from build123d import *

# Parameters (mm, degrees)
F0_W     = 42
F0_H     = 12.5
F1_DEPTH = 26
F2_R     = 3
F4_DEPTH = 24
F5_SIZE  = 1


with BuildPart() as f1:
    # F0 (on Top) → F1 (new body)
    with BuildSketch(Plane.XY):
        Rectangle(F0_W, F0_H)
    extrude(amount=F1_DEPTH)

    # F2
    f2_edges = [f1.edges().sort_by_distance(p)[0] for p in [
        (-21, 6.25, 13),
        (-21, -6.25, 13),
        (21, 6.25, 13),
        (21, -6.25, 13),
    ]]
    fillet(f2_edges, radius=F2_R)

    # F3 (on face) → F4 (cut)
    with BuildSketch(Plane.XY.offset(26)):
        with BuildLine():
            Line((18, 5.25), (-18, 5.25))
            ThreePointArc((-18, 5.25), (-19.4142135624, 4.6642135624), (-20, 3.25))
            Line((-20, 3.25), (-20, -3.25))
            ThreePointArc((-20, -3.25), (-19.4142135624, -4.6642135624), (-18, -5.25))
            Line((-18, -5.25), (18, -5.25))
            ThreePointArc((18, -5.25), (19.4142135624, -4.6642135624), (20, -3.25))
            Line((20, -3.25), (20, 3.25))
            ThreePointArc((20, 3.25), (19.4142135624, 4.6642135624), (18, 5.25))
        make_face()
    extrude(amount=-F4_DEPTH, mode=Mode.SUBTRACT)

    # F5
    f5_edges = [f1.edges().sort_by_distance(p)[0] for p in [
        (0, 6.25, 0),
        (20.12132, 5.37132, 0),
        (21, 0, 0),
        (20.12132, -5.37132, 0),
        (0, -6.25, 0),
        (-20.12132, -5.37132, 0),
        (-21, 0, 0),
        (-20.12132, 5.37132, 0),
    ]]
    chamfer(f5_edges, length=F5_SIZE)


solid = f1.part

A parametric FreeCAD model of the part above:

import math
import FreeCAD as App
import Part
import Sketcher

V = App.Vector


def edges_at(feature, points):
    """Names of the edges that pass closest to the given points."""
    edges = feature.Shape.Edges
    near = lambda p: min(range(len(edges)), key=lambda i: edges[i].distToShape(Part.Vertex(*p))[0])
    return sorted({f"Edge{near(p) + 1}" for p in points})

doc = App.newDocument("Part")
body = doc.addObject("PartDesign::Body", "Body")

# Sketch on XY plane
sketch1 = body.newObject("Sketcher::SketchObject", "Sketch")
sketch1.AttachmentSupport = (doc.getObject("XY_Plane"), [""])
sketch1.MapMode = "FlatFace"
sketch1.addGeometry([
    Part.LineSegment(V(-21, 6, 0), V(-21, -6, 0)),
    Part.LineSegment(V(-21, -6, 0), V(21, -6, 0)),
    Part.LineSegment(V(21, -6, 0), V(21, 6, 0)),
    Part.LineSegment(V(21, 6, 0), V(-21, 6, 0)),
], False)
sketch1.addConstraint([
    Sketcher.Constraint("Coincident", 0, 2, 1, 1),
    Sketcher.Constraint("Coincident", 1, 2, 2, 1),
    Sketcher.Constraint("Coincident", 2, 2, 3, 1),
    Sketcher.Constraint("Coincident", 3, 2, 0, 1),
    Sketcher.Constraint("Vertical", 0),
    Sketcher.Constraint("Horizontal", 1),
    Sketcher.Constraint("Vertical", 2),
    Sketcher.Constraint("Horizontal", 3),
    Sketcher.Constraint("Symmetric", 0, 2, 2, 2, -1, 1),
    Sketcher.Constraint("DistanceX", 1, 1, 1, 2, 42.0),
    Sketcher.Constraint("DistanceY", 0, 2, 0, 1, 12.5),
])
pad1 = body.newObject("PartDesign::Pad", "Pad")
pad1.Profile = sketch1
pad1.Length = 26
doc.recompute()

fillet = body.newObject("PartDesign::Fillet", "Fillet")
fillet.Base = (pad1, edges_at(pad1, [
    (-21, 6.25, 13),
    (-21, -6.25, 13),
    (21, 6.25, 13),
    (21, -6.25, 13),
]))
fillet.Radius = 3

# Sketch on XY plane
sketch2 = body.newObject("Sketcher::SketchObject", "Sketch001")
sketch2.AttachmentSupport = (doc.getObject("XY_Plane"), [""])
sketch2.MapMode = "FlatFace"
sketch2.AttachmentOffset = App.Placement(V(0, 0, 26), App.Rotation())
sketch2.addGeometry([
    Part.LineSegment(V(18, 5.2, 0), V(-18, 5.2, 0)),  # 0
    Part.ArcOfCircle(Part.Circle(V(-18, 3.2, 0), V(0, 0, 1), 2), math.radians(90), math.radians(180)),  # 1
    Part.LineSegment(V(-20, 3.2, 0), V(-20, -3.2, 0)),  # 2
    Part.ArcOfCircle(Part.Circle(V(-18, -3.2, 0), V(0, 0, 1), 2), math.radians(180), math.radians(270)),  # 3
    Part.LineSegment(V(-18, -5.2, 0), V(18, -5.2, 0)),  # 4
    Part.ArcOfCircle(Part.Circle(V(18, -3.2, 0), V(0, 0, 1), 2), math.radians(-90), math.radians(0)),  # 5
    Part.LineSegment(V(20, -3.2, 0), V(20, 3.2, 0)),  # 6
    Part.ArcOfCircle(Part.Circle(V(18, 3.2, 0), V(0, 0, 1), 2), math.radians(0), math.radians(90)),  # 7
], False)
sketch2.addConstraint([
    Sketcher.Constraint("Tangent", 0, 2, 1, 1),
    Sketcher.Constraint("Tangent", 1, 2, 2, 1),
    Sketcher.Constraint("Tangent", 2, 2, 3, 1),
    Sketcher.Constraint("Tangent", 3, 2, 4, 1),
    Sketcher.Constraint("Tangent", 4, 2, 5, 1),
    Sketcher.Constraint("Tangent", 5, 2, 6, 1),
    Sketcher.Constraint("Tangent", 6, 2, 7, 1),
    Sketcher.Constraint("Tangent", 7, 2, 0, 1),
    Sketcher.Constraint("Horizontal", 0),
    Sketcher.Constraint("Vertical", 2),
    Sketcher.Constraint("Horizontal", 4),
    Sketcher.Constraint("Vertical", 6),
    Sketcher.Constraint("Equal", 1, 3),
    Sketcher.Constraint("Equal", 3, 5),
    Sketcher.Constraint("Equal", 5, 7),
    Sketcher.Constraint("Symmetric", 1, 3, 5, 3, -1, 1),
    Sketcher.Constraint("Radius", 1, 2.0),
    Sketcher.Constraint("DistanceX", 0, 2, 0, 1, 36.0),
    Sketcher.Constraint("DistanceY", 2, 2, 2, 1, 6.5),
])
pocket1 = body.newObject("PartDesign::Pocket", "Pocket")
pocket1.Profile = sketch2
pocket1.Length = 24
doc.recompute()

chamfer = body.newObject("PartDesign::Chamfer", "Chamfer")
chamfer.Base = (pocket1, edges_at(pocket1, [
    (0, 6.25, 0),
    (20.121, 5.371, 0),
    (21, 0, 0),
    (20.121, -5.371, 0),
    (0, -6.25, 0),
    (-20.121, -5.371, 0),
    (-21, 0, 0),
    (-20.121, 5.371, 0),
]))
chamfer.Size = 1

doc.recompute()
